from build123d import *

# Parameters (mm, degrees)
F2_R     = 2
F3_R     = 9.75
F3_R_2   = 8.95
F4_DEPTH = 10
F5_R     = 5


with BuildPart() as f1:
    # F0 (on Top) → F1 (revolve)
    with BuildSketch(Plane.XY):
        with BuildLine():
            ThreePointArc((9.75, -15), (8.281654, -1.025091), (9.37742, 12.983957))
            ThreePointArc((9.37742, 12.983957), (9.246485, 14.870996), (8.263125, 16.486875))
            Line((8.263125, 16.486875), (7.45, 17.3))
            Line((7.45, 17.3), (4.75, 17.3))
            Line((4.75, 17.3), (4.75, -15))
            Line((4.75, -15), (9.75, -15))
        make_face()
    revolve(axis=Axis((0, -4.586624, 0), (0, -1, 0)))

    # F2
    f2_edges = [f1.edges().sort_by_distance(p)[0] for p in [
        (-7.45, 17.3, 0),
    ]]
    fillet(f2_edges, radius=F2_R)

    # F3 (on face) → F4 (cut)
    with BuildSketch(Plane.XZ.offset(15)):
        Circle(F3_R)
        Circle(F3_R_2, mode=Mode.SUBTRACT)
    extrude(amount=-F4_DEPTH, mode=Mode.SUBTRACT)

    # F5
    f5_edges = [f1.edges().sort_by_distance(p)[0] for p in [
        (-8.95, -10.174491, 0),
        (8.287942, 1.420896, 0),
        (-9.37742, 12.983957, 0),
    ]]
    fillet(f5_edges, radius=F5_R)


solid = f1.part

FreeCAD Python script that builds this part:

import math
import FreeCAD as App
import Part
import Sketcher

V = App.Vector
Q = App.Units.Quantity


def edges_at(feature, points):
    """Names of the edges that pass closest to the given points."""
    edges = feature.Shape.Edges
    near = lambda p: min(range(len(edges)), key=lambda i: edges[i].distToShape(Part.Vertex(*p))[0])
    return sorted({f"Edge{near(p) + 1}" for p in points})

doc = App.newDocument("Part")
body = doc.addObject("PartDesign::Body", "Body")

# Sketch on XY plane
sketch1 = doc.addObject("Sketcher::SketchObject", "Sketch")
body.addObject(sketch1)
sketch1.AttachmentSupport = (doc.XY_Plane, [""])
sketch1.MapMode = "FlatFace"
sketch1.addGeometry([
    Part.ArcOfCircle(Part.Circle(V(85.3, 0, 0), V(0, 0, 1), 77), math.radians(170), math.radians(191)),  # 0
    Part.ArcOfCircle(Part.Circle(V(5.4, 13.7, 0), V(0, 0, 1), 4), math.radians(-10), math.radians(45)),  # 1
    Part.LineSegment(V(8.3, 16.5, 0), V(7.5, 17.3, 0)),  # 2
    Part.LineSegment(V(7.5, 17.3, 0), V(4.8, 17.3, 0)),  # 3
    Part.LineSegment(V(4.8, 17.3, 0), V(4.8, -15, 0)),  # 4
    Part.LineSegment(V(4.8, -15, 0), V(9.8, -15, 0)),  # 5
], False)
sketch1.addConstraint([
    Sketcher.Constraint("Tangent", 0, 1, 1, 1),
    Sketcher.Constraint("Tangent", 1, 2, 2, 1),
    Sketcher.Constraint("Coincident", 2, 2, 3, 1),
    Sketcher.Constraint("Coincident", 3, 2, 4, 1),
    Sketcher.Constraint("Coincident", 4, 2, 5, 1),
    Sketcher.Constraint("Coincident", 5, 2, 0, 2),
    Sketcher.Constraint("Horizontal", 3),
    Sketcher.Constraint("Vertical", 4),
    Sketcher.Constraint("Horizontal", 5),
    Sketcher.Constraint("PointOnObject", 0, 3, -1),
    Sketcher.Constraint("Radius", 0, Q("77.000001 mm")),
    Sketcher.Constraint("DistanceX", 5, 1, 5, 2, Q("5 mm")),
    Sketcher.Constraint("Angle", 2, Q("135 deg")),
    Sketcher.Constraint("DistanceX", 3, 2, 3, 1, Q("2.7 mm")),
    Sketcher.Constraint("DistanceY", 4, 2, 4, 1, Q("32.3 mm")),
    Sketcher.Constraint("DistanceY", 4, 2, -1, 1, Q("15 mm")),
    Sketcher.Constraint("DistanceX", -1, 1, 2, 2, Q("7.45 mm")),
    Sketcher.Constraint("Radius", 1, Q("4.000004 mm")),
])
revolution = doc.addObject("PartDesign::Revolution", "Revolution")
body.addObject(revolution)
revolution.Profile = sketch1
revolution.ReferenceAxis = (sketch1, ["V_Axis"])
revolution.Angle = 360
doc.recompute()

fillet = doc.addObject("PartDesign::Fillet", "Fillet")
body.addObject(fillet)
fillet.Base = (revolution, edges_at(revolution, [(-7.45, 17.3, 0)]))
fillet.Radius = 2

# Sketch on XZ plane
sketch2 = doc.addObject("Sketcher::SketchObject", "Sketch001")
body.addObject(sketch2)
sketch2.AttachmentSupport = (doc.XZ_Plane, [""])
sketch2.MapMode = "FlatFace"
sketch2.AttachmentOffset = App.Placement(V(0, 0, 15), App.Rotation())
sketch2.addGeometry([
    Part.Circle(V(0, 0, 0), V(0, 0, 1), 10),
    Part.Circle(V(0, 0, 0), V(0, 0, 1), 9),
], False)
sketch2.addConstraint([
    Sketcher.Constraint("Coincident", 0, 3, -1, 1),
    Sketcher.Constraint("Coincident", 1, 3, -1, 1),
    Sketcher.Constraint("Diameter", 0, Q("19.5 mm")),
    Sketcher.Constraint("Diameter", 1, Q("17.9 mm")),
])
pocket1 = doc.addObject("PartDesign::Pocket", "Pocket")
body.addObject(pocket1)
pocket1.Profile = sketch2
pocket1.Length = 10
doc.recompute()

fillet2 = doc.addObject("PartDesign::Fillet", "Fillet001")
body.addObject(fillet2)
fillet2.Base = (pocket1, edges_at(pocket1, [(-8.95, -10.174, 0), (8.288, 1.421, 0), (-9.377, 12.984, 0)]))
fillet2.Radius = 5

doc.recompute()
